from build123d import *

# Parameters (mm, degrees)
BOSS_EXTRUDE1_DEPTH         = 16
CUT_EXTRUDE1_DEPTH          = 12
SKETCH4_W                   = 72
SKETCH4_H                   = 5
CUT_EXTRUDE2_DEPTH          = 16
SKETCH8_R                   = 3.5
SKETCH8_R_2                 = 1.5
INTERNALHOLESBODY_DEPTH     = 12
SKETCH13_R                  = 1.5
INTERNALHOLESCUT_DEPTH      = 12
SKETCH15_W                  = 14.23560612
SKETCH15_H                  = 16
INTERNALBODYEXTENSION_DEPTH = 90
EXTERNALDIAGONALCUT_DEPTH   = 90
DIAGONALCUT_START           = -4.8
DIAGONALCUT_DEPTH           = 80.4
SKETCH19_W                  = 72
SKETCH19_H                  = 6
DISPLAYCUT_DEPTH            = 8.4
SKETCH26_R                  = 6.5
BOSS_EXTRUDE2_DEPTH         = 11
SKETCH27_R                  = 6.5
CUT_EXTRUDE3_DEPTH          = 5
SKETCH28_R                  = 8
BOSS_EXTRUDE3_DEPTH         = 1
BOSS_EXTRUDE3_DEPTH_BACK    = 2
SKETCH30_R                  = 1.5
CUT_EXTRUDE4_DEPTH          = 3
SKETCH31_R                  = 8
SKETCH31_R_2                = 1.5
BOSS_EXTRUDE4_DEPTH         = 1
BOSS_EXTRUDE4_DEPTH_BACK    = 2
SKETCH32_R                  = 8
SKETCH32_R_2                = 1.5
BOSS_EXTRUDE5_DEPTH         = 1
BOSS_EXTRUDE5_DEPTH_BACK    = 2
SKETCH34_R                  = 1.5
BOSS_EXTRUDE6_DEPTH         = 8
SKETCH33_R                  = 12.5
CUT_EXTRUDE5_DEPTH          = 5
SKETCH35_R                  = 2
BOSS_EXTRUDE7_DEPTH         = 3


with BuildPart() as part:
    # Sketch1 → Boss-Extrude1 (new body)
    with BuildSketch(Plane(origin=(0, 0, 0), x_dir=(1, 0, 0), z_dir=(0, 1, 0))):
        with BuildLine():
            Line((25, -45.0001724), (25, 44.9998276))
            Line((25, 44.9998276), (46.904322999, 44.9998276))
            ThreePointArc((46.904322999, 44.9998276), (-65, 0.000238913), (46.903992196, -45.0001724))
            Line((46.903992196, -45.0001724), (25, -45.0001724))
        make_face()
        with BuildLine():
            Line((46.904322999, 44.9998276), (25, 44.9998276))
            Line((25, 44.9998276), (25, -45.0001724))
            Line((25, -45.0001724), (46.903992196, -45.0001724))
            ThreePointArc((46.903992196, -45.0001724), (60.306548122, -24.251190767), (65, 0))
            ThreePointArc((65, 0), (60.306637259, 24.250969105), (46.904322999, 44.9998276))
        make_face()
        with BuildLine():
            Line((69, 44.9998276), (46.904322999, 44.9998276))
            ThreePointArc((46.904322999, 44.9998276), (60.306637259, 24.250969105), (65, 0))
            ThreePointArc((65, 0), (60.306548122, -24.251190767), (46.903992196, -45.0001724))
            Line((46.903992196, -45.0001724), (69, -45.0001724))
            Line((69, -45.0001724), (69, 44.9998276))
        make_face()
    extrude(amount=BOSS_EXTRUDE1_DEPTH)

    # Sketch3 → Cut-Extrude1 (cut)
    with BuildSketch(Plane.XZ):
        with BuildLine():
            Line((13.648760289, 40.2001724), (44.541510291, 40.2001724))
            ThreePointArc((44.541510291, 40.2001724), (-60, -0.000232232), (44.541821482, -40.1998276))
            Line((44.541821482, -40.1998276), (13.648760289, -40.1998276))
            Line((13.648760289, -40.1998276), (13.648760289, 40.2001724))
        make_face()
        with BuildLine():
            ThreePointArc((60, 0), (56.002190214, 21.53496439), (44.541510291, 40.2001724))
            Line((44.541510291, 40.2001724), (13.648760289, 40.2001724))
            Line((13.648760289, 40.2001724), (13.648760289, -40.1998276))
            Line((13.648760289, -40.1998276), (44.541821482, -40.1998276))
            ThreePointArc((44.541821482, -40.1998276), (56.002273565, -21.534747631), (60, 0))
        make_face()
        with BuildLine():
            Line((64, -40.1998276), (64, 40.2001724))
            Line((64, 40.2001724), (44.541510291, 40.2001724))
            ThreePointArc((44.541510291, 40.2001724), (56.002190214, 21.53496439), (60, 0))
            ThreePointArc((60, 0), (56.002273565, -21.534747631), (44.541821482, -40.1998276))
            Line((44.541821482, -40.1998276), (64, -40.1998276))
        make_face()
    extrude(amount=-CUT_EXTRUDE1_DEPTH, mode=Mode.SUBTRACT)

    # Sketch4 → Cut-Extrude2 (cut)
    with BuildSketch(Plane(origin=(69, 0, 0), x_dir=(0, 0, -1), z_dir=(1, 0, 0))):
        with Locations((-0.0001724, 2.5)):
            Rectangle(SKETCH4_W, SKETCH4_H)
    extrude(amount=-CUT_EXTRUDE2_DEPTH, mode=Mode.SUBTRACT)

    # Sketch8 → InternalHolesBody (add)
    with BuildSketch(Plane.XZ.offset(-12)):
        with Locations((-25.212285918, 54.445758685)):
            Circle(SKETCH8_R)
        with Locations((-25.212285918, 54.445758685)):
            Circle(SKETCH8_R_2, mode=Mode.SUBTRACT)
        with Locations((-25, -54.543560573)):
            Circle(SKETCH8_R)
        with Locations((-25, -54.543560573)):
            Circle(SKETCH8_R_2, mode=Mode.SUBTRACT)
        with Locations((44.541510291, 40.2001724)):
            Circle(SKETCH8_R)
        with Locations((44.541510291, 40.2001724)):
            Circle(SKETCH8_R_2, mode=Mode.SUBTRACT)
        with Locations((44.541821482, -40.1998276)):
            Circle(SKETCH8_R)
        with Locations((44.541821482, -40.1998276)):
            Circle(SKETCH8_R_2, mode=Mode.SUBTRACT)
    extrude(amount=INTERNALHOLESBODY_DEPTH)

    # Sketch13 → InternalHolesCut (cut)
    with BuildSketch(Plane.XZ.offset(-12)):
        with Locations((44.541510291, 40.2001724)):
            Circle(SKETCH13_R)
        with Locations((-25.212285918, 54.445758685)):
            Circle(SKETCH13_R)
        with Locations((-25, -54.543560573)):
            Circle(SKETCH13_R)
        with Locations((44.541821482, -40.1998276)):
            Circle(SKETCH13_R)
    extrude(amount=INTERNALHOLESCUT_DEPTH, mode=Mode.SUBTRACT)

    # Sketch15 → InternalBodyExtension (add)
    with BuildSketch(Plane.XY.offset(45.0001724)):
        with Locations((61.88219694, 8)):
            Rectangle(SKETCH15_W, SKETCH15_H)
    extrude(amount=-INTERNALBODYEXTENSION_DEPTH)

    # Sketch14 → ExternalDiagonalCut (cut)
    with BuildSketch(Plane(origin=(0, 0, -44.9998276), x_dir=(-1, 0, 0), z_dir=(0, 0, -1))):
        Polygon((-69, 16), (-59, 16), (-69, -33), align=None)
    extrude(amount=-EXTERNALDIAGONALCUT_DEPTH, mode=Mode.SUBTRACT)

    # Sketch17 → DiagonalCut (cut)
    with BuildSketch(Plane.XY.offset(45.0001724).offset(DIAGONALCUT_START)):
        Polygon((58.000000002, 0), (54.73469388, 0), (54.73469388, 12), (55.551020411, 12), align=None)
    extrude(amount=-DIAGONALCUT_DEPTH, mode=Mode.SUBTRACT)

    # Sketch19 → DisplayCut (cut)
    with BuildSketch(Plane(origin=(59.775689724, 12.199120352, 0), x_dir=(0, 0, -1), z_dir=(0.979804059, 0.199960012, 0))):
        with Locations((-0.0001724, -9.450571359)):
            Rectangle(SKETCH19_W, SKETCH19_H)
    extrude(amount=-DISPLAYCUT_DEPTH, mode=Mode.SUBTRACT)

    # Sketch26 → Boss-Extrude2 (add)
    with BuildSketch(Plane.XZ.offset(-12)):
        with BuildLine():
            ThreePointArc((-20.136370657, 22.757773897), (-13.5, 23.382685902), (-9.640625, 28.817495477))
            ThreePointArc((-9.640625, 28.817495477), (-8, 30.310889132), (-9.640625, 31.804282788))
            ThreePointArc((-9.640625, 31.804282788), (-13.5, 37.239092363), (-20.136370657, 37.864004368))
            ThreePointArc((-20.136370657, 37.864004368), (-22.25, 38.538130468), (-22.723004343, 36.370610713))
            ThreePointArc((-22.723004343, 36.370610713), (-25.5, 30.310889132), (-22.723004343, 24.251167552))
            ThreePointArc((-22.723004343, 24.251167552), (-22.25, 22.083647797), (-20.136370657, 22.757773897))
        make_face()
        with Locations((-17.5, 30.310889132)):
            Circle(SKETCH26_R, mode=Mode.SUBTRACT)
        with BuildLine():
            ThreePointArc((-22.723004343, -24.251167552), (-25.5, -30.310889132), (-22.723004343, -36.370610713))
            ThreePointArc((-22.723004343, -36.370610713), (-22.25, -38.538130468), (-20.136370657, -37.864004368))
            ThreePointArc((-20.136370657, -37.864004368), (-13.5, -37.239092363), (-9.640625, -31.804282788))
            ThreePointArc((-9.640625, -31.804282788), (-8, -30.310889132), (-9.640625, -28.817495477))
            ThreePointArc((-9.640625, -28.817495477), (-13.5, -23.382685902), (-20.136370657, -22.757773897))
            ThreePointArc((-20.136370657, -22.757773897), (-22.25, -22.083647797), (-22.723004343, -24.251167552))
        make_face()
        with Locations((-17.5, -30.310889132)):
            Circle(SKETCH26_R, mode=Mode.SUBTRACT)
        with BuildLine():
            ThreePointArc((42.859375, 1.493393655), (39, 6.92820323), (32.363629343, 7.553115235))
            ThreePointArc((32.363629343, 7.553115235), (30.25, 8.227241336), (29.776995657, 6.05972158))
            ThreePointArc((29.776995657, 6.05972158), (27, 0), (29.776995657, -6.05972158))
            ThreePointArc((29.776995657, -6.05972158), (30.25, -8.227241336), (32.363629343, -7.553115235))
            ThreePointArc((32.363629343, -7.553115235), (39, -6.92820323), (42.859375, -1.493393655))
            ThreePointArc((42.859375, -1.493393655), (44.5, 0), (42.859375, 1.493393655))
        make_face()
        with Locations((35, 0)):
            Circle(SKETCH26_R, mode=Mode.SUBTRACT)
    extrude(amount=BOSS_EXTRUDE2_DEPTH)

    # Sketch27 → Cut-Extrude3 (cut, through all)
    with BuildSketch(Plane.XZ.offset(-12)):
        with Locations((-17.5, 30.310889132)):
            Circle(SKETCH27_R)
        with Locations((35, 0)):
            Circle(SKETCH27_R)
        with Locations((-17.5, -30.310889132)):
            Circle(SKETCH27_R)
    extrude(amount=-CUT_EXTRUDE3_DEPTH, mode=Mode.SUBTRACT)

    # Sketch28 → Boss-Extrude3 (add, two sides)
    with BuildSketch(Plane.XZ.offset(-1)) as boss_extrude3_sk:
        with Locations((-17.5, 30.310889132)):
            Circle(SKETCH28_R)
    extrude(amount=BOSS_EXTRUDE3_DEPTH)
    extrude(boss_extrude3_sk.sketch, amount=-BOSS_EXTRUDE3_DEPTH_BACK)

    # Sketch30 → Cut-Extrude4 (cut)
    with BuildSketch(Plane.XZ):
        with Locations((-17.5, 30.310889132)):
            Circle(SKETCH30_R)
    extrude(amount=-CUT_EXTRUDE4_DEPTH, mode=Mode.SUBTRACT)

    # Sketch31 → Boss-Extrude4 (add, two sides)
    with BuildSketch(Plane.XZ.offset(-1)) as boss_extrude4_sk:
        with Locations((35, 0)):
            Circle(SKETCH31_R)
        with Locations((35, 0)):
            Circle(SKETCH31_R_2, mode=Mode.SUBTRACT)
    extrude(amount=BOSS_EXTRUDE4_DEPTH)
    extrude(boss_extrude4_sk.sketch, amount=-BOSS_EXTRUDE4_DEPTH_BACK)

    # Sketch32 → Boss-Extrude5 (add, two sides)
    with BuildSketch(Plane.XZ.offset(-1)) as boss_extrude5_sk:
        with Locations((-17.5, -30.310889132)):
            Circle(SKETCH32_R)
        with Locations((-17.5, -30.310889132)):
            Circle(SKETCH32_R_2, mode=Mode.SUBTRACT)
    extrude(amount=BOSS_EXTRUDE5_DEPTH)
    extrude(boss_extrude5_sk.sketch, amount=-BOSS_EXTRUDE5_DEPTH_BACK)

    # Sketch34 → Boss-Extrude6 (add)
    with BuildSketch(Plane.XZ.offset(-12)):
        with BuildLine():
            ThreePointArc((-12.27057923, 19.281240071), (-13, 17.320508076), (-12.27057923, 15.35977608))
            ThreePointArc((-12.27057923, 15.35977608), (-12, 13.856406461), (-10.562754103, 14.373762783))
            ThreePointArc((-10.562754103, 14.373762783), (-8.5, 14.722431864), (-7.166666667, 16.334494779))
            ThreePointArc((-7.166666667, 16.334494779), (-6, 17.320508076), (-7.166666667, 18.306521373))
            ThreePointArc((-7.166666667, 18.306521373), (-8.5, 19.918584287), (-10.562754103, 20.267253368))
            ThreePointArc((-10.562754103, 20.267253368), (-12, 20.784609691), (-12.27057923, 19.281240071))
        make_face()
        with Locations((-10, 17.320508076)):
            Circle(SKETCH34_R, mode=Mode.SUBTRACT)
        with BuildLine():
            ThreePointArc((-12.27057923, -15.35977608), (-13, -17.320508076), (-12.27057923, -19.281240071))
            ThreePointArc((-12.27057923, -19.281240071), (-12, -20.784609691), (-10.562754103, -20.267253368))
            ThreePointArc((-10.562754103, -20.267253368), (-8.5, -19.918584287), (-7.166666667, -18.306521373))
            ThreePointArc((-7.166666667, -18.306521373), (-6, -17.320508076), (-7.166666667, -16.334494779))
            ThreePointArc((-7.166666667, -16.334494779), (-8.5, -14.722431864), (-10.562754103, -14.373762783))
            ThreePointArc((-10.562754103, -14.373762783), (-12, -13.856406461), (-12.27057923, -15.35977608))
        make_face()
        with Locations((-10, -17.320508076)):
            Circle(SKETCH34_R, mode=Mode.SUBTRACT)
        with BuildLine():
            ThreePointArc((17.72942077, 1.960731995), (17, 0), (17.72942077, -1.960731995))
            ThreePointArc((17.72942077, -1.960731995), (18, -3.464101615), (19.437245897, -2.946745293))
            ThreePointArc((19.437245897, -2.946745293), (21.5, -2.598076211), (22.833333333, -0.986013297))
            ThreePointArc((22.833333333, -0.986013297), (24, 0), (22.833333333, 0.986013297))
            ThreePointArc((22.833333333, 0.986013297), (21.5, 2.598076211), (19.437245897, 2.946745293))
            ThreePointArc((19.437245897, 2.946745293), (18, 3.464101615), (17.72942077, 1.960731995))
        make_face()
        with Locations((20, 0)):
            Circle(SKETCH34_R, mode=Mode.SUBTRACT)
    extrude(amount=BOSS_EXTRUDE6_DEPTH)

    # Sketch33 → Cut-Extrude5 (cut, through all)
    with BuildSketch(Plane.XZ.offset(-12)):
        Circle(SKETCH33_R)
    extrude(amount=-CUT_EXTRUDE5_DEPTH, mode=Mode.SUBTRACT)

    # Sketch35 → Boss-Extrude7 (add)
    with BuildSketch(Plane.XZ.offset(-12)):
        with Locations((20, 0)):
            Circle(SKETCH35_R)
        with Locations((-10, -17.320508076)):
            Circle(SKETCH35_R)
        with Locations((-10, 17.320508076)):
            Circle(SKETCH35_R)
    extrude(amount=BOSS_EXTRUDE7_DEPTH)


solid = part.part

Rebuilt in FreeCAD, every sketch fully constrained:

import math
import FreeCAD as App
import Part
import Sketcher

doc = App.newDocument("Part")
body = doc.addObject("PartDesign::Body", "Body")

# Sketch on XZ plane
sketch1 = body.newObject("Sketcher::SketchObject", "Sketch")
sketch1.AttachmentSupport = (doc.getObject("XZ_Plane"), [""])
sketch1.MapMode = "FlatFace"
sketch1.addGeometry([
    Part.ArcOfCircle(Part.Circle(App.Vector(0, 0, 0), App.Vector(0, 0, 1), 65), math.radians(44), math.radians(316)),
    Part.LineSegment(App.Vector(47, 45, 0), App.Vector(69, 45, 0)),
    Part.LineSegment(App.Vector(69, 45, 0), App.Vector(69, -45, 0)),
    Part.LineSegment(App.Vector(69, -45, 0), App.Vector(47, -45, 0)),
], False)
sketch1.addConstraint([
    Sketcher.Constraint("Coincident", 0, 1, 1, 1),
    Sketcher.Constraint("Coincident", 1, 2, 2, 1),
    Sketcher.Constraint("Coincident", 2, 2, 3, 1),
    Sketcher.Constraint("Coincident", 3, 2, 0, 2),
    Sketcher.Constraint("Horizontal", 1),
    Sketcher.Constraint("Vertical", 2),
    Sketcher.Constraint("Horizontal", 3),
    Sketcher.Constraint("Coincident", 0, 3, -1, 1),
    Sketcher.Constraint("Radius", 0, 65.0),
    Sketcher.Constraint("DistanceY", 2, 2, 2, 1, 90.0),
    Sketcher.Constraint("DistanceX", -1, 1, 1, 2, 69.0),
    Sketcher.Constraint("DistanceX", 1, 1, 1, 2, 22.096008),
])
pad1 = body.newObject("PartDesign::Pad", "Pad")
pad1.Profile = sketch1
pad1.Length = 16
pad1.Reversed = True

# Sketch on XZ plane
sketch2 = body.newObject("Sketcher::SketchObject", "Sketch001")
sketch2.AttachmentSupport = (doc.getObject("XZ_Plane"), [""])
sketch2.MapMode = "FlatFace"
sketch2.addGeometry([
    Part.ArcOfCircle(Part.Circle(App.Vector(0, 0, 0), App.Vector(0, 0, 1), 60), math.radians(42), math.radians(318)),
    Part.LineSegment(App.Vector(45, -40, 0), App.Vector(64, -40, 0)),
    Part.LineSegment(App.Vector(64, -40, 0), App.Vector(64, 40, 0)),
    Part.LineSegment(App.Vector(64, 40, 0), App.Vector(45, 40, 0)),
], False)
sketch2.addConstraint([
    Sketcher.Constraint("Coincident", 0, 2, 1, 1),
    Sketcher.Constraint("Coincident", 1, 2, 2, 1),
    Sketcher.Constraint("Coincident", 2, 2, 3, 1),
    Sketcher.Constraint("Coincident", 3, 2, 0, 1),
    Sketcher.Constraint("Horizontal", 1),
    Sketcher.Constraint("Vertical", 2),
    Sketcher.Constraint("Horizontal", 3),
    Sketcher.Constraint("Coincident", 0, 3, -1, 1),
    Sketcher.Constraint("Radius", 0, 60.0),
    Sketcher.Constraint("DistanceY", 2, 1, 2, 2, 80.4),
    Sketcher.Constraint("DistanceX", -1, 1, 1, 2, 64.0),
    Sketcher.Constraint("DistanceX", 1, 1, 1, 2, 19.458179),
])
pocket1 = body.newObject("PartDesign::Pocket", "Pocket")
pocket1.Profile = sketch2
pocket1.Length = 12

# Sketch on YZ plane
sketch3 = body.newObject("Sketcher::SketchObject", "Sketch002")
sketch3.AttachmentSupport = (doc.getObject("YZ_Plane"), [""])
sketch3.MapMode = "FlatFace"
sketch3.AttachmentOffset = App.Placement(App.Vector(0, 0, 69), App.Rotation())
sketch3.addGeometry([
    Part.LineSegment(App.Vector(5, 36, 0), App.Vector(0, 36, 0)),
    Part.LineSegment(App.Vector(0, 36, 0), App.Vector(0, -36, 0)),
    Part.LineSegment(App.Vector(0, -36, 0), App.Vector(5, -36, 0)),
    Part.LineSegment(App.Vector(5, -36, 0), App.Vector(5, 36, 0)),
], False)
sketch3.addConstraint([
    Sketcher.Constraint("Coincident", 0, 2, 1, 1),
    Sketcher.Constraint("Coincident", 1, 2, 2, 1),
    Sketcher.Constraint("Coincident", 2, 2, 3, 1),
    Sketcher.Constraint("Coincident", 3, 2, 0, 1),
    Sketcher.Constraint("Horizontal", 0),
    Sketcher.Constraint("Vertical", 1),
    Sketcher.Constraint("Horizontal", 2),
    Sketcher.Constraint("Vertical", 3),
    Sketcher.Constraint("PointOnObject", 0, 2, -2),
    Sketcher.Constraint("DistanceX", 0, 2, 0, 1, 5.0),
    Sketcher.Constraint("DistanceY", 1, 2, 1, 1, 72.0),
    Sketcher.Constraint("DistanceY", -1, 1, 0, 2, 36.000172),
])
pocket2 = body.newObject("PartDesign::Pocket", "Pocket001")
pocket2.Profile = sketch3
pocket2.Length = 16

# Sketch on XZ plane
sketch4 = body.newObject("Sketcher::SketchObject", "Sketch003")
sketch4.AttachmentSupport = (doc.getObject("XZ_Plane"), [""])
sketch4.MapMode = "FlatFace"
sketch4.AttachmentOffset = App.Placement(App.Vector(0, 0, -12), App.Rotation())
sketch4.addGeometry([
    Part.Circle(App.Vector(-25.2, 54.4, 0), App.Vector(0, 0, 1), 3.5),  # 0
    Part.Circle(App.Vector(-25.2, 54.4, 0), App.Vector(0, 0, 1), 1.5),  # 1
    Part.Circle(App.Vector(-25, -54.5, 0), App.Vector(0, 0, 1), 3.5),  # 2
    Part.Circle(App.Vector(-25, -54.5, 0), App.Vector(0, 0, 1), 1.5),  # 3
    Part.Circle(App.Vector(44.5, 40.2, 0), App.Vector(0, 0, 1), 3.5),  # 4
    Part.Circle(App.Vector(44.5, 40.2, 0), App.Vector(0, 0, 1), 1.5),  # 5
    Part.Circle(App.Vector(44.5, -40.2, 0), App.Vector(0, 0, 1), 3.5),  # 6
    Part.Circle(App.Vector(44.5, -40.2, 0), App.Vector(0, 0, 1), 1.5),  # 7
], False)
sketch4.addConstraint([
    Sketcher.Constraint("Coincident", 1, 3, 0, 3),
    Sketcher.Constraint("Coincident", 3, 3, 2, 3),
    Sketcher.Constraint("Coincident", 5, 3, 4, 3),
    Sketcher.Constraint("Coincident", 7, 3, 6, 3),
    Sketcher.Constraint("Equal", 0, 2),
    Sketcher.Constraint("Equal", 1, 3),
    Sketcher.Constraint("Equal", 2, 4),
    Sketcher.Constraint("Equal", 3, 5),
    Sketcher.Constraint("Equal", 4, 6),
    Sketcher.Constraint("Equal", 5, 7),
    Sketcher.Constraint("Diameter", 0, 7.0),
    Sketcher.Constraint("Diameter", 1, 3.0),
    Sketcher.Constraint("DistanceX", 2, 3, -1, 1, 25.0),
    Sketcher.Constraint("DistanceY", 6, 3, 4, 3, 80.4),
    Sketcher.Constraint("DistanceY", -1, 1, 0, 3, 54.445759),
    Sketcher.Constraint("DistanceY", 2, 3, -1, 1, 54.543561),
    Sketcher.Constraint("DistanceX", -1, 1, 4, 3, 44.54151),
    Sketcher.Constraint("DistanceX", -1, 1, 6, 3, 44.541821),
    Sketcher.Constraint("DistanceX", 0, 3, -1, 1, 25.212286),
    Sketcher.Constraint("DistanceY", -1, 1, 4, 3, 40.200172),
])
pad2 = body.newObject("PartDesign::Pad", "Pad001")
pad2.Profile = sketch4
pad2.Length = 12

# Sketch on XZ plane
sketch5 = body.newObject("Sketcher::SketchObject", "Sketch004")
sketch5.AttachmentSupport = (doc.getObject("XZ_Plane"), [""])
sketch5.MapMode = "FlatFace"
sketch5.AttachmentOffset = App.Placement(App.Vector(0, 0, -12), App.Rotation())
sketch5.addGeometry([
    Part.Circle(App.Vector(44.5, 40.2, 0), App.Vector(0, 0, 1), 1.5),
    Part.Circle(App.Vector(-25.2, 54.4, 0), App.Vector(0, 0, 1), 1.5),
    Part.Circle(App.Vector(-25, -54.5, 0), App.Vector(0, 0, 1), 1.5),
    Part.Circle(App.Vector(44.5, -40.2, 0), App.Vector(0, 0, 1), 1.5),
], False)
sketch5.addConstraint([
    Sketcher.Constraint("Equal", 0, 1),
    Sketcher.Constraint("Equal", 1, 2),
    Sketcher.Constraint("Equal", 2, 3),
    Sketcher.Constraint("Diameter", 0, 3.0),
    Sketcher.Constraint("DistanceX", 2, 3, -1, 1, 25.0),
    Sketcher.Constraint("DistanceY", 3, 3, 0, 3, 80.4),
    Sketcher.Constraint("DistanceX", -1, 1, 0, 3, 44.54151),
    Sketcher.Constraint("DistanceY", -1, 1, 1, 3, 54.445759),
    Sketcher.Constraint("DistanceY", 2, 3, -1, 1, 54.543561),
    Sketcher.Constraint("DistanceX", -1, 1, 3, 3, 44.541821),
    Sketcher.Constraint("DistanceY", -1, 1, 0, 3, 40.200172),
    Sketcher.Constraint("DistanceX", 1, 3, -1, 1, 25.212286),
])
pocket3 = body.newObject("PartDesign::Pocket", "Pocket002")
pocket3.Profile = sketch5
pocket3.Length = 12
pocket3.Reversed = True

# Sketch on XY plane
sketch6 = body.newObject("Sketcher::SketchObject", "Sketch005")
sketch6.AttachmentSupport = (doc.getObject("XY_Plane"), [""])
sketch6.MapMode = "FlatFace"
sketch6.AttachmentOffset = App.Placement(App.Vector(0, 0, 45.000172), App.Rotation())
sketch6.addGeometry([
    Part.LineSegment(App.Vector(55, 16, 0), App.Vector(55, 0, 0)),
    Part.LineSegment(App.Vector(55, 0, 0), App.Vector(69, 0, 0)),
    Part.LineSegment(App.Vector(69, 0, 0), App.Vector(69, 16, 0)),
    Part.LineSegment(App.Vector(69, 16, 0), App.Vector(55, 16, 0)),
], False)
sketch6.addConstraint([
    Sketcher.Constraint("Coincident", 0, 2, 1, 1),
    Sketcher.Constraint("Coincident", 1, 2, 2, 1),
    Sketcher.Constraint("Coincident", 2, 2, 3, 1),
    Sketcher.Constraint("Coincident", 3, 2, 0, 1),
    Sketcher.Constraint("Vertical", 0),
    Sketcher.Constraint("Horizontal", 1),
    Sketcher.Constraint("Vertical", 2),
    Sketcher.Constraint("Horizontal", 3),
    Sketcher.Constraint("PointOnObject", 0, 2, -1),
    Sketcher.Constraint("DistanceY", 0, 2, 0, 1, 16.0),
    Sketcher.Constraint("DistanceX", -1, 1, 1, 2, 69.0),
    Sketcher.Constraint("DistanceX", 1, 1, 1, 2, 14.235606),
])
pad3 = body.newObject("PartDesign::Pad", "Pad002")
pad3.Profile = sketch6
pad3.Length = 90
pad3.Reversed = True

# Sketch on XY plane
sketch7 = body.newObject("Sketcher::SketchObject", "Sketch006")
sketch7.AttachmentSupport = (doc.getObject("XY_Plane"), [""])
sketch7.MapMode = "FlatFace"
sketch7.AttachmentOffset = App.Placement(App.Vector(0, 0, -44.999828), App.Rotation())
sketch7.addGeometry([
    Part.LineSegment(App.Vector(59, 16, 0), App.Vector(69, 16, 0)),
    Part.LineSegment(App.Vector(69, 16, 0), App.Vector(69, -33, 0)),
    Part.LineSegment(App.Vector(69, -33, 0), App.Vector(59, 16, 0)),
], False)
sketch7.addConstraint([
    Sketcher.Constraint("Coincident", 0, 2, 1, 1),
    Sketcher.Constraint("Coincident", 1, 2, 2, 1),
    Sketcher.Constraint("Coincident", 2, 2, 0, 1),
    Sketcher.Constraint("Horizontal", 0),
    Sketcher.Constraint("Vertical", 1),
    Sketcher.Constraint("DistanceX", 0, 1, 0, 2, 10.0),
    Sketcher.Constraint("DistanceY", 1, 2, 1, 1, 49.0),
    Sketcher.Constraint("DistanceX", -1, 1, 0, 2, 69.0),
    Sketcher.Constraint("DistanceY", -1, 1, 0, 2, 16.0),
])
pocket4 = body.newObject("PartDesign::Pocket", "Pocket003")
pocket4.Profile = sketch7
pocket4.Length = 90
pocket4.Reversed = True

# Sketch on XY plane
sketch8 = body.newObject("Sketcher::SketchObject", "Sketch007")
sketch8.AttachmentSupport = (doc.getObject("XY_Plane"), [""])
sketch8.MapMode = "FlatFace"
sketch8.AttachmentOffset = App.Placement(App.Vector(0, 0, 40.200172), App.Rotation())
sketch8.addGeometry([
    Part.LineSegment(App.Vector(54.7, 0, 0), App.Vector(58, 0, 0)),
    Part.LineSegment(App.Vector(58, 0, 0), App.Vector(55.6, 12, 0)),
    Part.LineSegment(App.Vector(55.6, 12, 0), App.Vector(54.7, 12, 0)),
    Part.LineSegment(App.Vector(54.7, 12, 0), App.Vector(54.7, 0, 0)),
], False)
sketch8.addConstraint([
    Sketcher.Constraint("Coincident", 0, 2, 1, 1),
    Sketcher.Constraint("Coincident", 1, 2, 2, 1),
    Sketcher.Constraint("Coincident", 2, 2, 3, 1),
    Sketcher.Constraint("Coincident", 3, 2, 0, 1),
    Sketcher.Constraint("Horizontal", 0),
    Sketcher.Constraint("Horizontal", 2),
    Sketcher.Constraint("Vertical", 3),
    Sketcher.Constraint("PointOnObject", 0, 2, -1),
    Sketcher.Constraint("DistanceY", 3, 2, 3, 1, 12.0),
    Sketcher.Constraint("DistanceX", -1, 1, 0, 2, 58.0),
    Sketcher.Constraint("DistanceX", 0, 1, 0, 2, 3.265306),
    Sketcher.Constraint("DistanceX", 2, 2, 2, 1, 0.816327),
])
pocket5 = body.newObject("PartDesign::Pocket", "Pocket004")
pocket5.Profile = sketch8
pocket5.Length = 80.4

# Sketch on an angled plane
sketch9 = body.newObject("Sketcher::SketchObject", "Sketch008")
sketch9.Placement = App.Placement(App.Vector(59.77569, 12.19912, 0), App.Rotation(App.Vector(0, 0, -1), App.Vector(-0.199960012, 0.979804059, 0), App.Vector(0.979804059, 0.199960012, 0), "ZXY"))
sketch9.addGeometry([
    Part.LineSegment(App.Vector(-36, -6, 0), App.Vector(-36, -12, 0)),
    Part.LineSegment(App.Vector(-36, -12, 0), App.Vector(36, -12, 0)),
    Part.LineSegment(App.Vector(36, -12, 0), App.Vector(36, -6, 0)),
    Part.LineSegment(App.Vector(36, -6, 0), App.Vector(-36, -6, 0)),
], False)
sketch9.addConstraint([
    Sketcher.Constraint("Coincident", 0, 2, 1, 1),
    Sketcher.Constraint("Coincident", 1, 2, 2, 1),
    Sketcher.Constraint("Coincident", 2, 2, 3, 1),
    Sketcher.Constraint("Coincident", 3, 2, 0, 1),
    Sketcher.Constraint("Vertical", 0),
    Sketcher.Constraint("Horizontal", 1),
    Sketcher.Constraint("Vertical", 2),
    Sketcher.Constraint("Horizontal", 3),
    Sketcher.Constraint("DistanceX", 1, 1, 1, 2, 72.0),
    Sketcher.Constraint("DistanceY", 0, 2, 0, 1, 6.0),
    Sketcher.Constraint("DistanceY", 0, 2, -1, 1, 12.450571),
    Sketcher.Constraint("DistanceX", 0, 2, -1, 1, 36.000172),
])
pocket6 = body.newObject("PartDesign::Pocket", "Pocket005")
pocket6.Profile = sketch9
pocket6.Length = 8.4

# Sketch on XZ plane
sketch10 = body.newObject("Sketcher::SketchObject", "Sketch009")
sketch10.AttachmentSupport = (doc.getObject("XZ_Plane"), [""])
sketch10.MapMode = "FlatFace"
sketch10.AttachmentOffset = App.Placement(App.Vector(0, 0, -12), App.Rotation())
sketch10.addGeometry([
    Part.ArcOfCircle(Part.Circle(App.Vector(-17.5, 30.3, 0), App.Vector(0, 0, 1), 8), math.radians(-109), math.radians(-11)),  # 0
    Part.ArcOfCircle(Part.Circle(App.Vector(-9.5, 30.3, 0), App.Vector(0, 0, 1), 1.5), math.radians(-95), math.radians(95)),  # 1
    Part.ArcOfCircle(Part.Circle(App.Vector(-17.5, 30.3, 0), App.Vector(0, 0, 1), 8), math.radians(11), math.radians(109)),  # 2
    Part.ArcOfCircle(Part.Circle(App.Vector(-21.5, 37.2, 0), App.Vector(0, 0, 1), 1.5), math.radians(25), math.radians(215)),  # 3
    Part.ArcOfCircle(Part.Circle(App.Vector(-17.5, 30.3, 0), App.Vector(0, 0, 1), 8), math.radians(131), math.radians(229)),  # 4
    Part.ArcOfCircle(Part.Circle(App.Vector(-21.5, 23.4, 0), App.Vector(0, 0, 1), 1.5), math.radians(145), math.radians(335)),  # 5
    Part.Circle(App.Vector(-17.5, 30.3, 0), App.Vector(0, 0, 1), 6.5),  # 6
    Part.ArcOfCircle(Part.Circle(App.Vector(-17.5, -30.3, 0), App.Vector(0, 0, 1), 8), math.radians(131), math.radians(229)),  # 7
    Part.ArcOfCircle(Part.Circle(App.Vector(-21.5, -37.2, 0), App.Vector(0, 0, 1), 1.5), math.radians(145), math.radians(335)),  # 8
    Part.ArcOfCircle(Part.Circle(App.Vector(-17.5, -30.3, 0), App.Vector(0, 0, 1), 8), math.radians(-109), math.radians(-11)),  # 9
    Part.ArcOfCircle(Part.Circle(App.Vector(-9.5, -30.3, 0), App.Vector(0, 0, 1), 1.5), math.radians(-95), math.radians(95)),  # 10
    Part.ArcOfCircle(Part.Circle(App.Vector(-17.5, -30.3, 0), App.Vector(0, 0, 1), 8), math.radians(11), math.radians(109)),  # 11
    Part.ArcOfCircle(Part.Circle(App.Vector(-21.5, -23.4, 0), App.Vector(0, 0, 1), 1.5), math.radians(25), math.radians(215)),  # 12
    Part.Circle(App.Vector(-17.5, -30.3, 0), App.Vector(0, 0, 1), 6.5),  # 13
    Part.ArcOfCircle(Part.Circle(App.Vector(35, 0, 0), App.Vector(0, 0, 1), 8), math.radians(11), math.radians(109)),  # 14
    Part.ArcOfCircle(Part.Circle(App.Vector(31, 6.9, 0), App.Vector(0, 0, 1), 1.5), math.radians(25), math.radians(215)),  # 15
    Part.ArcOfCircle(Part.Circle(App.Vector(35, 0, 0), App.Vector(0, 0, 1), 8), math.radians(131), math.radians(229)),  # 16
    Part.ArcOfCircle(Part.Circle(App.Vector(31, -6.9, 0), App.Vector(0, 0, 1), 1.5), math.radians(145), math.radians(335)),  # 17
    Part.ArcOfCircle(Part.Circle(App.Vector(35, 0, 0), App.Vector(0, 0, 1), 8), math.radians(-109), math.radians(-11)),  # 18
    Part.ArcOfCircle(Part.Circle(App.Vector(43, 0, 0), App.Vector(0, 0, 1), 1.5), math.radians(-95), math.radians(95)),  # 19
    Part.Circle(App.Vector(35, 0, 0), App.Vector(0, 0, 1), 6.5),  # 20
], False)
sketch10.addConstraint([
    Sketcher.Constraint("Coincident", 0, 2, 1, 1),
    Sketcher.Constraint("Coincident", 1, 2, 2, 1),
    Sketcher.Constraint("Coincident", 2, 2, 3, 1),
    Sketcher.Constraint("Coincident", 3, 2, 4, 1),
    Sketcher.Constraint("Coincident", 4, 2, 5, 1),
    Sketcher.Constraint("Coincident", 5, 2, 0, 1),
    Sketcher.Constraint("Coincident", 7, 2, 8, 1),
    Sketcher.Constraint("Coincident", 8, 2, 9, 1),
    Sketcher.Constraint("Coincident", 9, 2, 10, 1),
    Sketcher.Constraint("Coincident", 10, 2, 11, 1),
    Sketcher.Constraint("Coincident", 11, 2, 12, 1),
    Sketcher.Constraint("Coincident", 12, 2, 7, 1),
    Sketcher.Constraint("Coincident", 14, 2, 15, 1),
    Sketcher.Constraint("Coincident", 15, 2, 16, 1),
    Sketcher.Constraint("Coincident", 16, 2, 17, 1),
    Sketcher.Constraint("Coincident", 17, 2, 18, 1),
    Sketcher.Constraint("Coincident", 18, 2, 19, 1),
    Sketcher.Constraint("Coincident", 19, 2, 14, 1),
    Sketcher.Constraint("Coincident", 2, 3, 0, 3),
    Sketcher.Constraint("Coincident", 4, 3, 0, 3),
    Sketcher.Constraint("Coincident", 6, 3, 0, 3),
    Sketcher.Constraint("Coincident", 9, 3, 7, 3),
    Sketcher.Constraint("Coincident", 11, 3, 7, 3),
    Sketcher.Constraint("Coincident", 13, 3, 7, 3),
    Sketcher.Constraint("Coincident", 16, 3, 14, 3),
    Sketcher.Constraint("Coincident", 18, 3, 14, 3),
    Sketcher.Constraint("Coincident", 20, 3, 14, 3),
    Sketcher.Constraint("Equal", 0, 2),
    Sketcher.Constraint("Equal", 1, 3),
    Sketcher.Constraint("Equal", 2, 4),
    Sketcher.Constraint("Equal", 3, 5),
    Sketcher.Constraint("Equal", 4, 7),
    Sketcher.Constraint("Equal", 5, 8),
    Sketcher.Constraint("Equal", 7, 9),
    Sketcher.Constraint("Equal", 8, 10),
    Sketcher.Constraint("Equal", 9, 11),
    Sketcher.Constraint("Equal", 10, 12),
    Sketcher.Constraint("Equal", 6, 13),
    Sketcher.Constraint("Equal", 11, 14),
    Sketcher.Constraint("Equal", 12, 15),
    Sketcher.Constraint("Equal", 14, 16),
    Sketcher.Constraint("Equal", 15, 17),
    Sketcher.Constraint("Equal", 16, 18),
    Sketcher.Constraint("Equal", 17, 19),
    Sketcher.Constraint("Equal", 13, 20),
    Sketcher.Constraint("Symmetric", 0, 3, 7, 3, -1),
    Sketcher.Constraint("Symmetric", 3, 3, 8, 3, -1),
    Sketcher.Constraint("Symmetric", 1, 3, 10, 3, -1),
    Sketcher.Constraint("Symmetric", 5, 3, 12, 3, -1),
    Sketcher.Constraint("Symmetric", 15, 3, 17, 3, -1),
    Sketcher.Constraint("Symmetric", 18, 2, 19, 2, -1),
    Sketcher.Constraint("Horizontal", 0, 3, 1, 3),
    Sketcher.Constraint("Vertical", 3, 3, 5, 3),
    Sketcher.Constraint("Vertical", 3, 2, 4, 2),
    Sketcher.Constraint("Diameter", 6, 13.0),
    Sketcher.Constraint("Radius", 0, 8.0),
    Sketcher.Constraint("Radius", 1, 1.5),
    Sketcher.Constraint("DistanceX", -1, 1, 14, 3, 35.0),
    Sketcher.Constraint("DistanceX", -1, 1, 15, 3, 31.0),
    Sketcher.Constraint("DistanceX", -1, 1, 19, 3, 43.0),
    Sketcher.Constraint("DistanceX", 0, 3, 1, 3, 8.0),
    Sketcher.Constraint("DistanceX", 3, 3, 2, 3, 4.0),
    Sketcher.Constraint("DistanceX", 0, 3, -1, 1, 17.5),
    Sketcher.Constraint("DistanceY", -1, 1, 0, 3, 30.310889),
    Sketcher.Constraint("DistanceX", 2, 2, -1, 1, 20.136371),
    Sketcher.Constraint("DistanceX", -1, 1, 14, 2, 32.363629),
])
pad4 = body.newObject("PartDesign::Pad", "Pad003")
pad4.Profile = sketch10
pad4.Length = 11

# Sketch on XZ plane
sketch11 = body.newObject("Sketcher::SketchObject", "Sketch010")
sketch11.AttachmentSupport = (doc.getObject("XZ_Plane"), [""])
sketch11.MapMode = "FlatFace"
sketch11.AttachmentOffset = App.Placement(App.Vector(0, 0, -12), App.Rotation())
sketch11.addGeometry([
    Part.Circle(App.Vector(-18, 30, 0), App.Vector(0, 0, 1), 6),
    Part.Circle(App.Vector(35, 0, 0), App.Vector(0, 0, 1), 6),
    Part.Circle(App.Vector(-18, -30, 0), App.Vector(0, 0, 1), 6),
], False)
sketch11.addConstraint([
    Sketcher.Constraint("Equal", 0, 1),
    Sketcher.Constraint("Equal", 1, 2),
    Sketcher.Constraint("Symmetric", 0, 3, 2, 3, -1),
    Sketcher.Constraint("PointOnObject", 1, 3, -1),
    Sketcher.Constraint("Diameter", 0, 13.0),
    Sketcher.Constraint("DistanceX", -1, 1, 1, 3, 35.0),
    Sketcher.Constraint("DistanceX", 0, 3, -1, 1, 17.5),
    Sketcher.Constraint("DistanceY", -1, 1, 0, 3, 30.310889),
])
pocket7 = body.newObject("PartDesign::Pocket", "Pocket006")
pocket7.Profile = sketch11
pocket7.Type = "ThroughAll"

# Sketch on XZ plane
sketch12 = body.newObject("Sketcher::SketchObject", "Sketch011")
sketch12.AttachmentSupport = (doc.getObject("XZ_Plane"), [""])
sketch12.MapMode = "FlatFace"
sketch12.AttachmentOffset = App.Placement(App.Vector(0, 0, -1), App.Rotation())
sketch12.addGeometry(Part.Circle(App.Vector(-18, 30, 0), App.Vector(0, 0, 1), 8), False)
sketch12.addConstraint([
    Sketcher.Constraint("Diameter", 0, 16.0),
    Sketcher.Constraint("DistanceX", 0, 3, -1, 1, 17.5),
    Sketcher.Constraint("DistanceY", -1, 1, 0, 3, 30.310889),
])
pad5 = body.newObject("PartDesign::Pad", "Pad004")
pad5.Profile = sketch12
pad5.Type = "TwoLengths"
pad5.Length = 1
pad5.Length2 = 2

# Sketch on XZ plane
sketch13 = body.newObject("Sketcher::SketchObject", "Sketch012")
sketch13.AttachmentSupport = (doc.getObject("XZ_Plane"), [""])
sketch13.MapMode = "FlatFace"
sketch13.addGeometry(Part.Circle(App.Vector(-17.5, 30.3, 0), App.Vector(0, 0, 1), 1.5), False)
sketch13.addConstraint([
    Sketcher.Constraint("Diameter", 0, 3.0),
    Sketcher.Constraint("DistanceX", 0, 3, -1, 1, 17.5),
    Sketcher.Constraint("DistanceY", -1, 1, 0, 3, 30.310889),
])
pocket8 = body.newObject("PartDesign::Pocket", "Pocket007")
pocket8.Profile = sketch13
pocket8.Length = 3

# Sketch on XZ plane
sketch14 = body.newObject("Sketcher::SketchObject", "Sketch013")
sketch14.AttachmentSupport = (doc.getObject("XZ_Plane"), [""])
sketch14.MapMode = "FlatFace"
sketch14.AttachmentOffset = App.Placement(App.Vector(0, 0, -1), App.Rotation())
sketch14.addGeometry([
    Part.Circle(App.Vector(35, 0, 0), App.Vector(0, 0, 1), 8),
    Part.Circle(App.Vector(35, 0, 0), App.Vector(0, 0, 1), 1.5),
], False)
sketch14.addConstraint([
    Sketcher.Constraint("Coincident", 1, 3, 0, 3),
    Sketcher.Constraint("PointOnObject", 0, 3, -1),
    Sketcher.Constraint("Diameter", 0, 16.0),
    Sketcher.Constraint("Diameter", 1, 3.0),
    Sketcher.Constraint("DistanceX", -1, 1, 0, 3, 35.0),
])
pad6 = body.newObject("PartDesign::Pad", "Pad005")
pad6.Profile = sketch14
pad6.Type = "TwoLengths"
pad6.Length = 1
pad6.Length2 = 2

# Sketch on XZ plane
sketch15 = body.newObject("Sketcher::SketchObject", "Sketch014")
sketch15.AttachmentSupport = (doc.getObject("XZ_Plane"), [""])
sketch15.MapMode = "FlatFace"
sketch15.AttachmentOffset = App.Placement(App.Vector(0, 0, -1), App.Rotation())
sketch15.addGeometry([
    Part.Circle(App.Vector(-17.5, -30.3, 0), App.Vector(0, 0, 1), 8),
    Part.Circle(App.Vector(-17.5, -30.3, 0), App.Vector(0, 0, 1), 1.5),
], False)
sketch15.addConstraint([
    Sketcher.Constraint("Coincident", 1, 3, 0, 3),
    Sketcher.Constraint("Diameter", 0, 16.0),
    Sketcher.Constraint("Diameter", 1, 3.0),
    Sketcher.Constraint("DistanceX", 0, 3, -1, 1, 17.5),
    Sketcher.Constraint("DistanceY", 0, 3, -1, 1, 30.310889),
])
pad7 = body.newObject("PartDesign::Pad", "Pad006")
pad7.Profile = sketch15
pad7.Type = "TwoLengths"
pad7.Length = 1
pad7.Length2 = 2

# Sketch on XZ plane
sketch16 = body.newObject("Sketcher::SketchObject", "Sketch015")
sketch16.AttachmentSupport = (doc.getObject("XZ_Plane"), [""])
sketch16.MapMode = "FlatFace"
sketch16.AttachmentOffset = App.Placement(App.Vector(0, 0, -12), App.Rotation())
sketch16.addGeometry([
    Part.ArcOfCircle(Part.Circle(App.Vector(-10, 17.3, 0), App.Vector(0, 0, 1), 3), math.radians(139), math.radians(221)),  # 0
    Part.ArcOfCircle(Part.Circle(App.Vector(-11.5, 14.7, 0), App.Vector(0, 0, 1), 1), math.radians(140), math.radians(340)),  # 1
    Part.ArcOfCircle(Part.Circle(App.Vector(-10, 17.3, 0), App.Vector(0, 0, 1), 3), math.radians(-101), math.radians(-19)),  # 2
    Part.ArcOfCircle(Part.Circle(App.Vector(-7, 17.3, 0), App.Vector(0, 0, 1), 1), math.radians(-100), math.radians(100)),  # 3
    Part.ArcOfCircle(Part.Circle(App.Vector(-10, 17.3, 0), App.Vector(0, 0, 1), 3), math.radians(19), math.radians(101)),  # 4
    Part.ArcOfCircle(Part.Circle(App.Vector(-11.5, 19.9, 0), App.Vector(0, 0, 1), 1), math.radians(20), math.radians(220)),  # 5
    Part.Circle(App.Vector(-10, 17.3, 0), App.Vector(0, 0, 1), 1.5),  # 6
    Part.ArcOfCircle(Part.Circle(App.Vector(-10, -17.3, 0), App.Vector(0, 0, 1), 3), math.radians(139), math.radians(221)),  # 7
    Part.ArcOfCircle(Part.Circle(App.Vector(-11.5, -19.9, 0), App.Vector(0, 0, 1), 1), math.radians(140), math.radians(340)),  # 8
    Part.ArcOfCircle(Part.Circle(App.Vector(-10, -17.3, 0), App.Vector(0, 0, 1), 3), math.radians(-101), math.radians(-19)),  # 9
    Part.ArcOfCircle(Part.Circle(App.Vector(-7, -17.3, 0), App.Vector(0, 0, 1), 1), math.radians(-100), math.radians(100)),  # 10
    Part.ArcOfCircle(Part.Circle(App.Vector(-10, -17.3, 0), App.Vector(0, 0, 1), 3), math.radians(19), math.radians(101)),  # 11
    Part.ArcOfCircle(Part.Circle(App.Vector(-11.5, -14.7, 0), App.Vector(0, 0, 1), 1), math.radians(20), math.radians(220)),  # 12
    Part.Circle(App.Vector(-10, -17.3, 0), App.Vector(0, 0, 1), 1.5),  # 13
    Part.ArcOfCircle(Part.Circle(App.Vector(20, 0, 0), App.Vector(0, 0, 1), 3), math.radians(139), math.radians(221)),  # 14
    Part.ArcOfCircle(Part.Circle(App.Vector(18.5, -2.6, 0), App.Vector(0, 0, 1), 1), math.radians(140), math.radians(340)),  # 15
    Part.ArcOfCircle(Part.Circle(App.Vector(20, 0, 0), App.Vector(0, 0, 1), 3), math.radians(-101), math.radians(-19)),  # 16
    Part.ArcOfCircle(Part.Circle(App.Vector(23, 0, 0), App.Vector(0, 0, 1), 1), math.radians(-100), math.radians(100)),  # 17
    Part.ArcOfCircle(Part.Circle(App.Vector(20, 0, 0), App.Vector(0, 0, 1), 3), math.radians(19), math.radians(101)),  # 18
    Part.ArcOfCircle(Part.Circle(App.Vector(18.5, 2.6, 0), App.Vector(0, 0, 1), 1), math.radians(20), math.radians(220)),  # 19
    Part.Circle(App.Vector(20, 0, 0), App.Vector(0, 0, 1), 1.5),  # 20
], False)
sketch16.addConstraint([
    Sketcher.Constraint("Coincident", 0, 2, 1, 1),
    Sketcher.Constraint("Coincident", 1, 2, 2, 1),
    Sketcher.Constraint("Coincident", 2, 2, 3, 1),
    Sketcher.Constraint("Coincident", 3, 2, 4, 1),
    Sketcher.Constraint("Coincident", 4, 2, 5, 1),
    Sketcher.Constraint("Coincident", 5, 2, 0, 1),
    Sketcher.Constraint("Coincident", 7, 2, 8, 1),
    Sketcher.Constraint("Coincident", 8, 2, 9, 1),
    Sketcher.Constraint("Coincident", 9, 2, 10, 1),
    Sketcher.Constraint("Coincident", 10, 2, 11, 1),
    Sketcher.Constraint("Coincident", 11, 2, 12, 1),
    Sketcher.Constraint("Coincident", 12, 2, 7, 1),
    Sketcher.Constraint("Coincident", 14, 2, 15, 1),
    Sketcher.Constraint("Coincident", 15, 2, 16, 1),
    Sketcher.Constraint("Coincident", 16, 2, 17, 1),
    Sketcher.Constraint("Coincident", 17, 2, 18, 1),
    Sketcher.Constraint("Coincident", 18, 2, 19, 1),
    Sketcher.Constraint("Coincident", 19, 2, 14, 1),
    Sketcher.Constraint("Coincident", 2, 3, 0, 3),
    Sketcher.Constraint("Coincident", 4, 3, 0, 3),
    Sketcher.Constraint("Coincident", 6, 3, 0, 3),
    Sketcher.Constraint("Coincident", 9, 3, 7, 3),
    Sketcher.Constraint("Coincident", 11, 3, 7, 3),
    Sketcher.Constraint("Coincident", 13, 3, 7, 3),
    Sketcher.Constraint("Coincident", 16, 3, 14, 3),
    Sketcher.Constraint("Coincident", 18, 3, 14, 3),
    Sketcher.Constraint("Coincident", 20, 3, 14, 3),
    Sketcher.Constraint("Equal", 0, 2),
    Sketcher.Constraint("Equal", 1, 3),
    Sketcher.Constraint("Equal", 2, 4),
    Sketcher.Constraint("Equal", 3, 5),
    Sketcher.Constraint("Equal", 4, 7),
    Sketcher.Constraint("Equal", 5, 8),
    Sketcher.Constraint("Equal", 7, 9),
    Sketcher.Constraint("Equal", 8, 10),
    Sketcher.Constraint("Equal", 9, 11),
    Sketcher.Constraint("Equal", 10, 12),
    Sketcher.Constraint("Equal", 6, 13),
    Sketcher.Constraint("Equal", 11, 14),
    Sketcher.Constraint("Equal", 12, 15),
    Sketcher.Constraint("Equal", 14, 16),
    Sketcher.Constraint("Equal", 15, 17),
    Sketcher.Constraint("Equal", 16, 18),
    Sketcher.Constraint("Equal", 17, 19),
    Sketcher.Constraint("Equal", 13, 20),
    Sketcher.Constraint("Symmetric", 0, 3, 7, 3, -1),
    Sketcher.Constraint("Symmetric", 5, 3, 8, 3, -1),
    Sketcher.Constraint("Symmetric", 3, 3, 10, 3, -1),
    Sketcher.Constraint("Symmetric", 1, 3, 12, 3, -1),
    Sketcher.Constraint("Symmetric", 15, 3, 19, 3, -1),
    Sketcher.Constraint("Symmetric", 16, 2, 17, 2, -1),
    Sketcher.Constraint("Horizontal", 2, 3, 3, 3),
    Sketcher.Constraint("Vertical", 1, 3, 5, 3),
    Sketcher.Constraint("Vertical", 1, 2, 4, 2),
    Sketcher.Constraint("Diameter", 6, 3.0),
    Sketcher.Constraint("Radius", 0, 3.0),
    Sketcher.Constraint("Radius", 1, 1.0),
    Sketcher.Constraint("DistanceX", 0, 3, -1, 1, 10.0),
    Sketcher.Constraint("DistanceX", 3, 3, -1, 1, 7.0),
    Sketcher.Constraint("DistanceX", -1, 1, 14, 3, 20.0),
    Sketcher.Constraint("DistanceX", -1, 1, 17, 3, 23.0),
    Sketcher.Constraint("DistanceX", 1, 3, -1, 1, 11.5),
    Sketcher.Constraint("DistanceX", -1, 1, 15, 3, 18.5),
    Sketcher.Constraint("DistanceY", -1, 1, 0, 3, 17.320508),
    Sketcher.Constraint("DistanceY", -1, 1, 1, 3, 14.722432),
    Sketcher.Constraint("DistanceX", -1, 1, 14, 2, 17.729421),
])
pad8 = body.newObject("PartDesign::Pad", "Pad007")
pad8.Profile = sketch16
pad8.Length = 8

# Sketch on XZ plane
sketch17 = body.newObject("Sketcher::SketchObject", "Sketch016")
sketch17.AttachmentSupport = (doc.getObject("XZ_Plane"), [""])
sketch17.MapMode = "FlatFace"
sketch17.AttachmentOffset = App.Placement(App.Vector(0, 0, -12), App.Rotation())
sketch17.addGeometry(Part.Circle(App.Vector(0, 0, 0), App.Vector(0, 0, 1), 12), False)
sketch17.addConstraint([
    Sketcher.Constraint("Coincident", 0, 3, -1, 1),
    Sketcher.Constraint("Diameter", 0, 25.0),
])
pocket9 = body.newObject("PartDesign::Pocket", "Pocket008")
pocket9.Profile = sketch17
pocket9.Type = "ThroughAll"

# Sketch on XZ plane
sketch18 = body.newObject("Sketcher::SketchObject", "Sketch017")
sketch18.AttachmentSupport = (doc.getObject("XZ_Plane"), [""])
sketch18.MapMode = "FlatFace"
sketch18.AttachmentOffset = App.Placement(App.Vector(0, 0, -12), App.Rotation())
sketch18.addGeometry([
    Part.Circle(App.Vector(20, 0, 0), App.Vector(0, 0, 1), 2),
    Part.Circle(App.Vector(-10, -17.3, 0), App.Vector(0, 0, 1), 2),
    Part.Circle(App.Vector(-10, 17.3, 0), App.Vector(0, 0, 1), 2),
], False)
sketch18.addConstraint([
    Sketcher.Constraint("Equal", 0, 1),
    Sketcher.Constraint("Equal", 1, 2),
    Sketcher.Constraint("Symmetric", 1, 3, 2, 3, -1),
    Sketcher.Constraint("PointOnObject", 0, 3, -1),
    Sketcher.Constraint("Diameter", 0, 4.0),
    Sketcher.Constraint("DistanceX", -1, 1, 0, 3, 20.0),
    Sketcher.Constraint("DistanceX", 1, 3, -1, 1, 10.0),
    Sketcher.Constraint("DistanceY", 1, 3, -1, 1, 17.320508),
])
pad9 = body.newObject("PartDesign::Pad", "Pad008")
pad9.Profile = sketch18
pad9.Length = 3

doc.recompute()
